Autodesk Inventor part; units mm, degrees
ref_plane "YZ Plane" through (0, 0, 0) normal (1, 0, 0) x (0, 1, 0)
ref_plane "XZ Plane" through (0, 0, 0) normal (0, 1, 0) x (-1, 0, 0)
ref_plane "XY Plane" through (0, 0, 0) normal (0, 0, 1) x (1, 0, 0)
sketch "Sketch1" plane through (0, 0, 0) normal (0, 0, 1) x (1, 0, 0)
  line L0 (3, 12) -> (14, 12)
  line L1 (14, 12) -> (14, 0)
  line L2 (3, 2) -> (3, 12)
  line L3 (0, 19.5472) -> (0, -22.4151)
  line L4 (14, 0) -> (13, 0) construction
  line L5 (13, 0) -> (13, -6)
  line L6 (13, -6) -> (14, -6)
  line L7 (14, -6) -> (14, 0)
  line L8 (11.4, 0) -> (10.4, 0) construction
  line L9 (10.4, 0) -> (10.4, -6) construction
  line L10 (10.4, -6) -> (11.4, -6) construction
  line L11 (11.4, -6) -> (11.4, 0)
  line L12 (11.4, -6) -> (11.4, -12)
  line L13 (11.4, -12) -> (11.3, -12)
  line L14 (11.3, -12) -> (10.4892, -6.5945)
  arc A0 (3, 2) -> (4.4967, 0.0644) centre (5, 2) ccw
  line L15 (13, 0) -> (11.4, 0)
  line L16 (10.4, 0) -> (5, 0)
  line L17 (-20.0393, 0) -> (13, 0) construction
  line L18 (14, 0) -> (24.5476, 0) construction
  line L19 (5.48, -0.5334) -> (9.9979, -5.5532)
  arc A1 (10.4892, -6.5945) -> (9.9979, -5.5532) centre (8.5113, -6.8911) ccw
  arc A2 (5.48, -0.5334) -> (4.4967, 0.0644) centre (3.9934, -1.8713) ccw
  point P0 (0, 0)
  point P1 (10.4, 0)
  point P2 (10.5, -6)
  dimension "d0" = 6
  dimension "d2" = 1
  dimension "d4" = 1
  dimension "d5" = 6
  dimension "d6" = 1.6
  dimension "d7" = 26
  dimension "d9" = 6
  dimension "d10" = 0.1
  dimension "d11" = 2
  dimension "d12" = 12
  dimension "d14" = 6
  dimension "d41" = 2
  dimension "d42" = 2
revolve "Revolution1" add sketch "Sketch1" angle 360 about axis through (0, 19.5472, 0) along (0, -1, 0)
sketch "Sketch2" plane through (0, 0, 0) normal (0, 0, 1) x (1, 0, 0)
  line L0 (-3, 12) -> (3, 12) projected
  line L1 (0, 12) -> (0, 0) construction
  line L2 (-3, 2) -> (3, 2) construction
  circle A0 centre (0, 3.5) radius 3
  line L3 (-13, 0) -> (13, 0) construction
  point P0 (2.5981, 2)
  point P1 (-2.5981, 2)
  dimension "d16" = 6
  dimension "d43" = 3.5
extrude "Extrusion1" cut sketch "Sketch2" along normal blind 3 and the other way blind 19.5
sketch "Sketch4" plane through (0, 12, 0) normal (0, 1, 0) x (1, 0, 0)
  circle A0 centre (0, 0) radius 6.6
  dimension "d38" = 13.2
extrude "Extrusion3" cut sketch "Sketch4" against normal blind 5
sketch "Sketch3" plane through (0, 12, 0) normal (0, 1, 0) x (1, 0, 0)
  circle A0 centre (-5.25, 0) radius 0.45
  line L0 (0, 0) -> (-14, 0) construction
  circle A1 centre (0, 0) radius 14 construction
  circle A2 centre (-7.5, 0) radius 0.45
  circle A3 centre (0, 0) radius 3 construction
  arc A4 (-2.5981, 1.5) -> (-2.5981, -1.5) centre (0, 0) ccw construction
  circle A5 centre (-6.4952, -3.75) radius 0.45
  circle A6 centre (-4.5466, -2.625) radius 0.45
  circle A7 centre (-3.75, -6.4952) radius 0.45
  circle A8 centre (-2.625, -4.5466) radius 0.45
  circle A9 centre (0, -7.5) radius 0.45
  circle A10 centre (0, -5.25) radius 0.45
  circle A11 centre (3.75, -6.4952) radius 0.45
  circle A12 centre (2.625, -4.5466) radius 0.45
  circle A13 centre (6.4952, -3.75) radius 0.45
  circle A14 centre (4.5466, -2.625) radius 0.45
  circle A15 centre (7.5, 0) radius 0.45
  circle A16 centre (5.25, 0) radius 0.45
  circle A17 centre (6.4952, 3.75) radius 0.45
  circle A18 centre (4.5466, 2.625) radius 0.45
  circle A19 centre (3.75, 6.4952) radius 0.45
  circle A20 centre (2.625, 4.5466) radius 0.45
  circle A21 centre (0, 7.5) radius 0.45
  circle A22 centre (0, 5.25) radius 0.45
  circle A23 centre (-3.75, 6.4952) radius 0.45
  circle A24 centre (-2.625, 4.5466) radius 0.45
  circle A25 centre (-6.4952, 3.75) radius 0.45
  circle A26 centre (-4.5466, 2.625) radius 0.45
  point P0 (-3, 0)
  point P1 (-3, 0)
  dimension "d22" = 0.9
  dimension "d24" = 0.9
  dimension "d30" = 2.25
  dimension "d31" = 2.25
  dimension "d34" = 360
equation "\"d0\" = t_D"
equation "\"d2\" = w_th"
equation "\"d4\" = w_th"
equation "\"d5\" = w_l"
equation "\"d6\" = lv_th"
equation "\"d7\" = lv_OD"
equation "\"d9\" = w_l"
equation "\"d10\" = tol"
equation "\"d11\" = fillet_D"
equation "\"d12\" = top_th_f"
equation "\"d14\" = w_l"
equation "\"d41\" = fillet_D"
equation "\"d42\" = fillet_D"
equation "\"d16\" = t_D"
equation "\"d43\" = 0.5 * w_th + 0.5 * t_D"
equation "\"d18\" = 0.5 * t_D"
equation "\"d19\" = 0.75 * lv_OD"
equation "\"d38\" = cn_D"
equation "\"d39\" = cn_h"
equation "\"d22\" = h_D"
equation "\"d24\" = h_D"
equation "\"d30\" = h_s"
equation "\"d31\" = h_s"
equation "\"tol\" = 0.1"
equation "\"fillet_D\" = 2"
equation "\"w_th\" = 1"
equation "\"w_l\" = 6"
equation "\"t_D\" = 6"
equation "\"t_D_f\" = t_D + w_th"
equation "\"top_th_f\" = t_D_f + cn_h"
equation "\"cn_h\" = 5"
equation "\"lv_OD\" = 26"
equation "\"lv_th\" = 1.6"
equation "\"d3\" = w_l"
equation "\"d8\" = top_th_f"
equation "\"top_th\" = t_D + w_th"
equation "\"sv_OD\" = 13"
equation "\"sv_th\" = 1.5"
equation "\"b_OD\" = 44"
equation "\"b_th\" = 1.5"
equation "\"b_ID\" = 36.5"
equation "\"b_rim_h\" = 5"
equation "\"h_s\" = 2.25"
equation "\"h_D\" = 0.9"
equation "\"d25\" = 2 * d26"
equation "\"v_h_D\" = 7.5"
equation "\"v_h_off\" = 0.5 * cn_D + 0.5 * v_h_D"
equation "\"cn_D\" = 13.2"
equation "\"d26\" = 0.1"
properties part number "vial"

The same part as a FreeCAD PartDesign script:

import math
import FreeCAD as App
import Part
import Sketcher
Q = App.Units.Quantity

doc = App.newDocument("Part")
body = doc.addObject("PartDesign::Body", "Body")

# Sketch on XY plane
sketch1 = body.newObject("Sketcher::SketchObject", "Sketch")
sketch1.AttachmentSupport = (doc.getObject("XY_Plane"), [""])
sketch1.MapMode = "FlatFace"
sketch1.addGeometry(Part.LineSegment(App.Vector(14, 12, 0), App.Vector(3, 12, 0)), False)
sketch1.addGeometry(Part.LineSegment(App.Vector(3, 12, 0), App.Vector(3, 2, 0)), False)
sketch1.addGeometry(Part.ArcOfCircle(Part.Circle(App.Vector(5, 2, 0), App.Vector(0, 0, 1), 2), math.radians(180), math.radians(255)), False)
sketch1.addGeometry(Part.ArcOfCircle(Part.Circle(App.Vector(3.99, -1.87, 0), App.Vector(0, 0, 1), 2), math.radians(42), math.radians(75)), False)
sketch1.addGeometry(Part.LineSegment(App.Vector(5.48, -0.53, 0), App.Vector(10, -5.55, 0)), False)
sketch1.addGeometry(Part.ArcOfCircle(Part.Circle(App.Vector(8.51, -6.89, 0), App.Vector(0, 0, 1), 2), math.radians(9), math.radians(42)), False)
sketch1.addGeometry(Part.LineSegment(App.Vector(10.49, -6.59, 0), App.Vector(11.3, -12, 0)), False)
sketch1.addGeometry(Part.LineSegment(App.Vector(11.3, -12, 0), App.Vector(11.4, -12, 0)), False)
sketch1.addGeometry(Part.LineSegment(App.Vector(11.4, -12, 0), App.Vector(11.4, 0, 0)), False)
sketch1.addGeometry(Part.LineSegment(App.Vector(11.4, 0, 0), App.Vector(13, 0, 0)), False)
sketch1.addGeometry(Part.LineSegment(App.Vector(13, 0, 0), App.Vector(13, -6, 0)), False)
sketch1.addGeometry(Part.LineSegment(App.Vector(13, -6, 0), App.Vector(14, -6, 0)), False)
sketch1.addGeometry(Part.LineSegment(App.Vector(14, -6, 0), App.Vector(14, 12, 0)), False)
sketch1.addConstraint(Sketcher.Constraint("Coincident", 0, 2, 1, 1))
sketch1.addConstraint(Sketcher.Constraint("Tangent", 1, 2, 2, 1))
sketch1.addConstraint(Sketcher.Constraint("Tangent", 2, 2, 3, 2))
sketch1.addConstraint(Sketcher.Constraint("Tangent", 3, 1, 4, 1))
sketch1.addConstraint(Sketcher.Constraint("Tangent", 4, 2, 5, 2))
sketch1.addConstraint(Sketcher.Constraint("Tangent", 5, 1, 6, 1))
sketch1.addConstraint(Sketcher.Constraint("Coincident", 6, 2, 7, 1))
sketch1.addConstraint(Sketcher.Constraint("Coincident", 7, 2, 8, 1))
sketch1.addConstraint(Sketcher.Constraint("Coincident", 8, 2, 9, 1))
sketch1.addConstraint(Sketcher.Constraint("Coincident", 9, 2, 10, 1))
sketch1.addConstraint(Sketcher.Constraint("Coincident", 10, 2, 11, 1))
sketch1.addConstraint(Sketcher.Constraint("Coincident", 11, 2, 12, 1))
sketch1.addConstraint(Sketcher.Constraint("Coincident", 12, 2, 0, 1))
sketch1.addConstraint(Sketcher.Constraint("Horizontal", 0))
sketch1.addConstraint(Sketcher.Constraint("Vertical", 1))
sketch1.addConstraint(Sketcher.Constraint("Horizontal", 7))
sketch1.addConstraint(Sketcher.Constraint("Vertical", 8))
sketch1.addConstraint(Sketcher.Constraint("Horizontal", 9))
sketch1.addConstraint(Sketcher.Constraint("Vertical", 10))
sketch1.addConstraint(Sketcher.Constraint("Horizontal", 11))
sketch1.addConstraint(Sketcher.Constraint("Vertical", 12))
sketch1.addConstraint(Sketcher.Constraint("Equal", 2, 3))
sketch1.addConstraint(Sketcher.Constraint("Equal", 3, 5))
sketch1.addConstraint(Sketcher.Constraint("PointOnObject", 8, 2, -1))
sketch1.addConstraint(Sketcher.Constraint("Radius", 2, 2.0))
sketch1.addConstraint(Sketcher.Constraint("DistanceX", 11, 1, 11, 2, 1.0))
sketch1.addConstraint(Sketcher.Constraint("DistanceY", 8, 1, 8, 2, 12.0))
sketch1.addConstraint(Sketcher.Constraint("DistanceY", 10, 2, 10, 1, 6.0))
sketch1.addConstraint(Sketcher.Constraint("DistanceX", 7, 1, 7, 2, 0.1))
sketch1.addConstraint(Sketcher.Constraint("DistanceX", 9, 1, 9, 2, 1.6))
sketch1.addConstraint(Sketcher.Constraint("DistanceY", -1, 1, 2, 3, 2.0))
sketch1.addConstraint(Sketcher.Constraint("DistanceY", -1, 1, 0, 2, 12.0))
sketch1.addConstraint(Sketcher.Constraint("DistanceX", 0, 2, 0, 1, 11.0))
sketch1.addConstraint(Sketcher.Constraint("DistanceX", -1, 1, 2, 3, 5.0))
sketch1.addConstraint(Sketcher.Constraint("Angle", 6, Q("-81.4695 deg")))
sketch1.addConstraint(Sketcher.Constraint("DistanceX", -1, 1, 3, 1, 5.48))
sketch1.addConstraint(Sketcher.Constraint("Distance", 6, 5.466))
revolution = body.newObject("PartDesign::Revolution", "Revolution")
revolution.Profile = sketch1
revolution.ReferenceAxis = (sketch1, ["V_Axis"])
revolution.Angle = 360

# Sketch on XY plane
sketch2 = body.newObject("Sketcher::SketchObject", "Sketch001")
sketch2.AttachmentSupport = (doc.getObject("XY_Plane"), [""])
sketch2.MapMode = "FlatFace"
sketch2.addGeometry(Part.Circle(App.Vector(0, 3.5, 0), App.Vector(0, 0, 1), 3), False)
sketch2.addConstraint(Sketcher.Constraint("PointOnObject", 0, 3, -2))
sketch2.addConstraint(Sketcher.Constraint("Diameter", 0, 6.0))
sketch2.addConstraint(Sketcher.Constraint("DistanceY", -1, 1, 0, 3, 3.5))
pocket1 = body.newObject("PartDesign::Pocket", "Pocket")
pocket1.Profile = sketch2
pocket1.Type = "TwoLengths"
pocket1.Length = 3
pocket1.Length2 = 19.5
pocket1.Reversed = True

# Sketch on XZ plane
sketch3 = body.newObject("Sketcher::SketchObject", "Sketch002")
sketch3.AttachmentSupport = (doc.getObject("XZ_Plane"), [""])
sketch3.MapMode = "FlatFace"
sketch3.AttachmentOffset = App.Placement(App.Vector(0, 0, -12), App.Rotation())
sketch3.addGeometry(Part.Circle(App.Vector(0, 0, 0), App.Vector(0, 0, 1), 7), False)
sketch3.addConstraint(Sketcher.Constraint("Coincident", 0, 3, -1, 1))
sketch3.addConstraint(Sketcher.Constraint("Diameter", 0, 13.2))
pocket2 = body.newObject("PartDesign::Pocket", "Pocket001")
pocket2.Profile = sketch3
pocket2.Length = 5
pocket2.Reversed = True

doc.recompute()
